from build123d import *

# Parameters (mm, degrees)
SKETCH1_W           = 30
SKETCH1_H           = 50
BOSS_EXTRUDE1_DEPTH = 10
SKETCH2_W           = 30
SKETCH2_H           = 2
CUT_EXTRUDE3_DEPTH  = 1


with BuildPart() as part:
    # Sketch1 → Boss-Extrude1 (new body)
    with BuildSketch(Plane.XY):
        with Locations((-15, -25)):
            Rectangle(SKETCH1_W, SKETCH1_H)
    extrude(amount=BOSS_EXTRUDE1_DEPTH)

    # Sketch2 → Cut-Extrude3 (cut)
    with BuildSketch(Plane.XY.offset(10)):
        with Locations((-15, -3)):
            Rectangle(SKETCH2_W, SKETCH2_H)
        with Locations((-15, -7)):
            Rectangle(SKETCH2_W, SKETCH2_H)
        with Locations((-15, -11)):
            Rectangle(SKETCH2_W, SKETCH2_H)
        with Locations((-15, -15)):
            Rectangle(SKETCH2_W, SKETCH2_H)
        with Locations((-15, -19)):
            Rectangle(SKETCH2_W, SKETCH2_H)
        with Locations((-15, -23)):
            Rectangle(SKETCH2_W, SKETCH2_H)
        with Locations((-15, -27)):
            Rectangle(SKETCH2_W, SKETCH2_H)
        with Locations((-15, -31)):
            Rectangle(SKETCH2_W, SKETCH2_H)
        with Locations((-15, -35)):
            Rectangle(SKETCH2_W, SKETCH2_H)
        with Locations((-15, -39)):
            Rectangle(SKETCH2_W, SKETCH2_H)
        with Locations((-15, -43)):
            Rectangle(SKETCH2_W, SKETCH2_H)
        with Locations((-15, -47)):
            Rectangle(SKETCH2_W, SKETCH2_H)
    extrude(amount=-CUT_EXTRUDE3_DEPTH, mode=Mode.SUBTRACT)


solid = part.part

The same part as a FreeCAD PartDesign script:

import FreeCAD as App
import Part
import Sketcher
from FreeCAD import Vector
Q = App.Units.Quantity


def add_polygon(sketch, points):
    """Adds a closed chain of lines whose ends are joined by coincident constraints."""
    first, n = sketch.GeometryCount, len(points)
    for a, b in zip(points, points[1:] + points[:1]):
        sketch.addGeometry(Part.LineSegment(App.Vector(*a, 0), App.Vector(*b, 0)), False)
    for i in range(n):
        sketch.addConstraint(Sketcher.Constraint("Coincident", first + i, 2, first + (i + 1) % n, 1))

doc = App.newDocument("Part")
body = doc.addObject("PartDesign::Body", "Body")

# Sketch on XY plane
sketch1 = body.newObject("Sketcher::SketchObject", "Sketch")
sketch1.AttachmentSupport = (doc.getObject("XY_Plane"), [""])
sketch1.MapMode = "FlatFace"
add_polygon(sketch1, [(-30, 0), (-30, -50), (0, -50), (0, 0)])  # lines 0-3
sketch1.addConstraint([
    Sketcher.Constraint("Vertical", 0),
    Sketcher.Constraint("Horizontal", 1),
    Sketcher.Constraint("Vertical", 2),
    Sketcher.Constraint("Horizontal", 3),
    Sketcher.Constraint("Coincident", 2, 2, -1, 1),
    Sketcher.Constraint("DistanceX", 1, 1, 1, 2, Q("30 mm")),
    Sketcher.Constraint("DistanceY", 0, 2, 0, 1, Q("50 mm")),
])
pad1 = body.newObject("PartDesign::Pad", "Pad")
pad1.Profile = sketch1
pad1.Length = 10

# Sketch on XY plane
sketch2 = body.newObject("Sketcher::SketchObject", "Sketch001")
sketch2.AttachmentSupport = (doc.getObject("XY_Plane"), [""])
sketch2.MapMode = "FlatFace"
sketch2.AttachmentOffset = App.Placement(Vector(0, 0, 10), App.Rotation())
add_polygon(sketch2, [(-30, -2), (-30, -4), (0, -4), (0, -2)])  # lines 0-3
add_polygon(sketch2, [(-30, -6), (-30, -8), (0, -8), (0, -6)])  # lines 4-7
add_polygon(sketch2, [(-30, -10), (-30, -12), (0, -12), (0, -10)])  # lines 8-11
add_polygon(sketch2, [(-30, -14), (-30, -16), (0, -16), (0, -14)])  # lines 12-15
add_polygon(sketch2, [(-30, -18), (-30, -20), (0, -20), (0, -18)])  # lines 16-19
add_polygon(sketch2, [(-30, -22), (-30, -24), (0, -24), (0, -22)])  # lines 20-23
add_polygon(sketch2, [(-30, -26), (-30, -28), (0, -28), (0, -26)])  # lines 24-27
add_polygon(sketch2, [(-30, -30), (-30, -32), (0, -32), (0, -30)])  # lines 28-31
add_polygon(sketch2, [(-30, -34), (-30, -36), (0, -36), (0, -34)])  # lines 32-35
add_polygon(sketch2, [(-30, -38), (-30, -40), (0, -40), (0, -38)])  # lines 36-39
add_polygon(sketch2, [(-30, -42), (-30, -44), (0, -44), (0, -42)])  # lines 40-43
add_polygon(sketch2, [(-30, -46), (-30, -48), (0, -48), (0, -46)])  # lines 44-47
sketch2.addConstraint([
    Sketcher.Constraint("Vertical", 0),
    Sketcher.Constraint("Horizontal", 1),
    Sketcher.Constraint("Vertical", 2),
    Sketcher.Constraint("Horizontal", 3),
    Sketcher.Constraint("Vertical", 4),
    Sketcher.Constraint("Horizontal", 5),
    Sketcher.Constraint("Vertical", 6),
    Sketcher.Constraint("Horizontal", 7),
    Sketcher.Constraint("Vertical", 8),
    Sketcher.Constraint("Horizontal", 9),
    Sketcher.Constraint("Vertical", 10),
    Sketcher.Constraint("Horizontal", 11),
    Sketcher.Constraint("Vertical", 12),
    Sketcher.Constraint("Horizontal", 13),
    Sketcher.Constraint("Vertical", 14),
    Sketcher.Constraint("Horizontal", 15),
    Sketcher.Constraint("Vertical", 16),
    Sketcher.Constraint("Horizontal", 17),
    Sketcher.Constraint("Vertical", 18),
    Sketcher.Constraint("Horizontal", 19),
    Sketcher.Constraint("Vertical", 20),
    Sketcher.Constraint("Horizontal", 21),
    Sketcher.Constraint("Vertical", 22),
    Sketcher.Constraint("Horizontal", 23),
    Sketcher.Constraint("Vertical", 24),
    Sketcher.Constraint("Horizontal", 25),
    Sketcher.Constraint("Vertical", 26),
    Sketcher.Constraint("Horizontal", 27),
    Sketcher.Constraint("Vertical", 28),
    Sketcher.Constraint("Horizontal", 29),
    Sketcher.Constraint("Vertical", 30),
    Sketcher.Constraint("Horizontal", 31),
    Sketcher.Constraint("Vertical", 32),
    Sketcher.Constraint("Horizontal", 33),
    Sketcher.Constraint("Vertical", 34),
    Sketcher.Constraint("Horizontal", 35),
    Sketcher.Constraint("Vertical", 36),
    Sketcher.Constraint("Horizontal", 37),
    Sketcher.Constraint("Vertical", 38),
    Sketcher.Constraint("Horizontal", 39),
    Sketcher.Constraint("Vertical", 40),
    Sketcher.Constraint("Horizontal", 41),
    Sketcher.Constraint("Vertical", 42),
    Sketcher.Constraint("Horizontal", 43),
    Sketcher.Constraint("Vertical", 44),
    Sketcher.Constraint("Horizontal", 45),
    Sketcher.Constraint("Vertical", 46),
    Sketcher.Constraint("Horizontal", 47),
    Sketcher.Constraint("PointOnObject", 1, 2, -2),
    Sketcher.Constraint("PointOnObject", 5, 2, -2),
    Sketcher.Constraint("PointOnObject", 9, 2, -2),
    Sketcher.Constraint("PointOnObject", 13, 2, -2),
    Sketcher.Constraint("PointOnObject", 17, 2, -2),
    Sketcher.Constraint("PointOnObject", 21, 2, -2),
    Sketcher.Constraint("PointOnObject", 25, 2, -2),
    Sketcher.Constraint("PointOnObject", 29, 2, -2),
    Sketcher.Constraint("PointOnObject", 33, 2, -2),
    Sketcher.Constraint("PointOnObject", 37, 2, -2),
    Sketcher.Constraint("PointOnObject", 41, 2, -2),
    Sketcher.Constraint("PointOnObject", 45, 2, -2),
    Sketcher.Constraint("Vertical", 3, 2, 4, 2),
    Sketcher.Constraint("Vertical", 7, 2, 8, 2),
    Sketcher.Constraint("Vertical", 11, 2, 12, 2),
    Sketcher.Constraint("Vertical", 15, 2, 16, 2),
    Sketcher.Constraint("Vertical", 19, 2, 20, 2),
    Sketcher.Constraint("Vertical", 23, 2, 24, 2),
    Sketcher.Constraint("Vertical", 27, 2, 28, 2),
    Sketcher.Constraint("Vertical", 31, 2, 32, 2),
    Sketcher.Constraint("Vertical", 35, 2, 36, 2),
    Sketcher.Constraint("Vertical", 39, 2, 40, 2),
    Sketcher.Constraint("Vertical", 43, 2, 44, 2),
    Sketcher.Constraint("Equal", 2, 4),
    Sketcher.Constraint("Equal", 6, 8),
    Sketcher.Constraint("Equal", 10, 12),
    Sketcher.Constraint("Equal", 14, 16),
    Sketcher.Constraint("Equal", 18, 20),
    Sketcher.Constraint("Equal", 22, 24),
    Sketcher.Constraint("Equal", 26, 28),
    Sketcher.Constraint("Equal", 30, 32),
    Sketcher.Constraint("Equal", 34, 36),
    Sketcher.Constraint("Equal", 38, 40),
    Sketcher.Constraint("Equal", 42, 44),
    Sketcher.Constraint("DistanceX", 1, 1, 1, 2, Q("30 mm")),
    Sketcher.Constraint("DistanceY", 0, 2, 0, 1, Q("2 mm")),
    Sketcher.Constraint("DistanceY", 0, 2, -1, 1, Q("4 mm")),
    Sketcher.Constraint("DistanceY", 4, 2, -1, 1, Q("8 mm")),
    Sketcher.Constraint("DistanceY", 8, 2, -1, 1, Q("12 mm")),
    Sketcher.Constraint("DistanceY", 12, 2, -1, 1, Q("16 mm")),
    Sketcher.Constraint("DistanceY", 16, 2, -1, 1, Q("20 mm")),
    Sketcher.Constraint("DistanceY", 20, 2, -1, 1, Q("24 mm")),
    Sketcher.Constraint("DistanceY", 24, 2, -1, 1, Q("28 mm")),
    Sketcher.Constraint("DistanceY", 28, 2, -1, 1, Q("32 mm")),
    Sketcher.Constraint("DistanceY", 32, 2, -1, 1, Q("36 mm")),
    Sketcher.Constraint("DistanceY", 36, 2, -1, 1, Q("40 mm")),
    Sketcher.Constraint("DistanceY", 40, 2, -1, 1, Q("44 mm")),
    Sketcher.Constraint("DistanceY", 44, 2, -1, 1, Q("48 mm")),
])
pocket1 = body.newObject("PartDesign::Pocket", "Pocket")
pocket1.Profile = sketch2
pocket1.Length = 1

doc.recompute()
